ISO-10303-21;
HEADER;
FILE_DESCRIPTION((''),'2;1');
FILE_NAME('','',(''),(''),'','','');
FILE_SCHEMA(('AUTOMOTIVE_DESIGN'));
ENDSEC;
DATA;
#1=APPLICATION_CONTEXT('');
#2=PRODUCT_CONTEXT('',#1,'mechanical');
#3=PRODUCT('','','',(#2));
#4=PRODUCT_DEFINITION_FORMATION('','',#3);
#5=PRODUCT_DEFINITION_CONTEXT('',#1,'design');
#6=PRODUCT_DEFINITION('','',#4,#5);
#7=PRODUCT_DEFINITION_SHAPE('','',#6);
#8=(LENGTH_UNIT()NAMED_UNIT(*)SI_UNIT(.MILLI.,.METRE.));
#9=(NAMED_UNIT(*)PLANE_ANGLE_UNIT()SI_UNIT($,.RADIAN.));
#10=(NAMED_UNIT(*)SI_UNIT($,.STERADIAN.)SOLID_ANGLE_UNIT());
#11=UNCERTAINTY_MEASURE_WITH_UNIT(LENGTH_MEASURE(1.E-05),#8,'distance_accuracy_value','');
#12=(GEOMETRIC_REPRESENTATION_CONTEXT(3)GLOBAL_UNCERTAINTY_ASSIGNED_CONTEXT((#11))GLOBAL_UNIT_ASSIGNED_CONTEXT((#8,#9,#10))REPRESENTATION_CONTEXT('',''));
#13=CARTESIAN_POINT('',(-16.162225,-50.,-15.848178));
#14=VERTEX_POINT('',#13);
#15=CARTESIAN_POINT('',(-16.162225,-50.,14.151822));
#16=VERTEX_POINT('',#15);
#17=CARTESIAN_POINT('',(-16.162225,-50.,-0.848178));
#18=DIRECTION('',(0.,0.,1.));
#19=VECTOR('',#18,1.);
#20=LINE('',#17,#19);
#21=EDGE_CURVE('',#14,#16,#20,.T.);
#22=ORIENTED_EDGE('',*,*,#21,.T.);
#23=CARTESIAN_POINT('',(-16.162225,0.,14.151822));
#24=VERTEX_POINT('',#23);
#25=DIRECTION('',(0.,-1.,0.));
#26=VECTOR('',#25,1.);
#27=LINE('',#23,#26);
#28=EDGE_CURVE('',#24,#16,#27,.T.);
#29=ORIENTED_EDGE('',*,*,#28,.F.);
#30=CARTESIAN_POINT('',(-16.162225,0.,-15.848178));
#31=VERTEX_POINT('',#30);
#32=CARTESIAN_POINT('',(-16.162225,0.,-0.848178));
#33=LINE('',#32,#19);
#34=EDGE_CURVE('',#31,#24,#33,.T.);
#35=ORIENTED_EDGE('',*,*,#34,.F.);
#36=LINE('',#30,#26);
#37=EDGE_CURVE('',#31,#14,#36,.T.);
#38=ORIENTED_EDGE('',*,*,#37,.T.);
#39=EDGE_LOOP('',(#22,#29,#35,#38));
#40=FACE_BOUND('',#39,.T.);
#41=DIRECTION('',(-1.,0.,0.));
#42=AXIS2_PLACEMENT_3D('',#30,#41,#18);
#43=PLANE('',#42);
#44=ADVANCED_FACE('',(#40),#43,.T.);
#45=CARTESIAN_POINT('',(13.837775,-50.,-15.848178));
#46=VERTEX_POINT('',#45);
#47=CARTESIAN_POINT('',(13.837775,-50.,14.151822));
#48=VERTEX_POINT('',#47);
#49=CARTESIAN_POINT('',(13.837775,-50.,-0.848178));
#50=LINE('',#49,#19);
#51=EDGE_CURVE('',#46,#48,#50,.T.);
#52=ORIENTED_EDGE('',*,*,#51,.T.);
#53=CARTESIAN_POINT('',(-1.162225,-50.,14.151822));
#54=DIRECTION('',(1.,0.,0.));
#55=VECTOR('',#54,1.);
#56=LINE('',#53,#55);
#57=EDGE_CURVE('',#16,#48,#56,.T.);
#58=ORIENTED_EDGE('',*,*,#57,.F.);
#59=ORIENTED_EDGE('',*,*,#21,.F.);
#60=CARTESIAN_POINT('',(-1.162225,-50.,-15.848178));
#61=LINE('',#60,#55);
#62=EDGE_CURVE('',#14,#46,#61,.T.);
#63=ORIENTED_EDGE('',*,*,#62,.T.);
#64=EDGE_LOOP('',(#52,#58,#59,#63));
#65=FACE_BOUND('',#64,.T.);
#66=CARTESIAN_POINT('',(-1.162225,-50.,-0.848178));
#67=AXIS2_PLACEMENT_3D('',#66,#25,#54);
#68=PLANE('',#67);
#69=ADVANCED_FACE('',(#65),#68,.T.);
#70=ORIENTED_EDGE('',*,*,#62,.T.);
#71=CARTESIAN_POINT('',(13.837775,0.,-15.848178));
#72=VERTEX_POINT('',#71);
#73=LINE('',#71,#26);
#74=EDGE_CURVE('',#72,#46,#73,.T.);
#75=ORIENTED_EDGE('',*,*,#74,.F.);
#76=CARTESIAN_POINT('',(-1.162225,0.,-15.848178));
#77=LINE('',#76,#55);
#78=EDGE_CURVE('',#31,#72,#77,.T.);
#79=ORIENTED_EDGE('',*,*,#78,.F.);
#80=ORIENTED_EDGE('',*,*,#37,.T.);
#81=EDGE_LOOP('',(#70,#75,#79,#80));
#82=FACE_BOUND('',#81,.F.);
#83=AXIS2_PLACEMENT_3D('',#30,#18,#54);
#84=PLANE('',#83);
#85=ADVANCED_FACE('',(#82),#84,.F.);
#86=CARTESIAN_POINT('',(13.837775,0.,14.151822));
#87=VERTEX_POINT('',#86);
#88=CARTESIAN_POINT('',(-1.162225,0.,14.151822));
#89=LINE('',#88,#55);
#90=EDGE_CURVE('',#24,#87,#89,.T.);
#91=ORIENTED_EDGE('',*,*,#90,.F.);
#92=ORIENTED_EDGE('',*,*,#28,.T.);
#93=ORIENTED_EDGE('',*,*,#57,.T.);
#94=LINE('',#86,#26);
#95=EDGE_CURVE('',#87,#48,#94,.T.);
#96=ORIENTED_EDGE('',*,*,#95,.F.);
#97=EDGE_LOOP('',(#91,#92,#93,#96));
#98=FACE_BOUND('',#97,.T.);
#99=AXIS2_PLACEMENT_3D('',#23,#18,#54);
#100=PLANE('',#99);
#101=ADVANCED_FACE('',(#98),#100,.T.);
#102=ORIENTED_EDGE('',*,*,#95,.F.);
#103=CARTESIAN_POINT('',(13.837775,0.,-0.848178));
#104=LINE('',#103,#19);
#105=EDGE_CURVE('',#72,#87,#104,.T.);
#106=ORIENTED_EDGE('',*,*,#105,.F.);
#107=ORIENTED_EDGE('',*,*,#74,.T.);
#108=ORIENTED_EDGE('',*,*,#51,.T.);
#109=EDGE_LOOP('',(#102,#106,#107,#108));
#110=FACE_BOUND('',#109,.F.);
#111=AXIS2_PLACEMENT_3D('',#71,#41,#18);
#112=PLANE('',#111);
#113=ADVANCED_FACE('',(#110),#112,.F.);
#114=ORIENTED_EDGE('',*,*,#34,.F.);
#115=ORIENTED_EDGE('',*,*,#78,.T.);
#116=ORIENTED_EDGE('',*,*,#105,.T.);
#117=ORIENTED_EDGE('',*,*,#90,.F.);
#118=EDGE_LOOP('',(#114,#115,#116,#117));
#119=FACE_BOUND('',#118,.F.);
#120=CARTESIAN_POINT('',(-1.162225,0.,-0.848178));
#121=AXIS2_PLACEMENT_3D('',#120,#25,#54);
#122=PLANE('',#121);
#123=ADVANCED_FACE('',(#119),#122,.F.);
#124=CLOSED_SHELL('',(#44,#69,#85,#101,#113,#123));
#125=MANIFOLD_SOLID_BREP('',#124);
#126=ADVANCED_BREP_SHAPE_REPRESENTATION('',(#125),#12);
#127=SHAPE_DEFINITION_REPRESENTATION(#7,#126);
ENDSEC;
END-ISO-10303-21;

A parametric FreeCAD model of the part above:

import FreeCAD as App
import Part
import Sketcher

doc = App.newDocument("Part")
params = doc.addObject("Spreadsheet::Sheet", "Params")
for row, (alias, value) in enumerate([
    ("sketch1_width", "30 mm"),
    ("pad1_length", "50 mm"),
], start=1):
    params.set(f"A{row}", alias)
    params.set(f"B{row}", "=" + value)
    params.setAlias(f"B{row}", alias)

body = doc.addObject("PartDesign::Body", "Body")

sketch1 = body.newObject("Sketcher::SketchObject", "Sketch")
sketch1.AttachmentSupport = (doc.getObject("XZ_Plane"), [""])
sketch1.MapMode = "FlatFace"
sketch1.addGeometry([
    Part.LineSegment(App.Vector(-16, 14, 0), App.Vector(-16, -16, 0)),
    Part.LineSegment(App.Vector(-16, -16, 0), App.Vector(14, -16, 0)),
    Part.LineSegment(App.Vector(14, -16, 0), App.Vector(14, 14, 0)),
    Part.LineSegment(App.Vector(14, 14, 0), App.Vector(-16, 14, 0)),
], False)
sketch1.addConstraint([
    Sketcher.Constraint("Coincident", 0, 2, 1, 1),
    Sketcher.Constraint("Coincident", 1, 2, 2, 1),
    Sketcher.Constraint("Coincident", 2, 2, 3, 1),
    Sketcher.Constraint("Coincident", 3, 2, 0, 1),
    Sketcher.Constraint("Vertical", 0),
    Sketcher.Constraint("Horizontal", 1),
    Sketcher.Constraint("Vertical", 2),
    Sketcher.Constraint("Horizontal", 3),
    Sketcher.Constraint("Equal", 3, 0),
    Sketcher.Constraint("DistanceX", 1, 1, 1, 2, 30.0),
    Sketcher.Constraint("DistanceY", 0, 2, -1, 1, 15.848178),
    Sketcher.Constraint("DistanceX", 0, 2, -1, 1, 16.162225),
])
sketch1.setExpression("Constraints[9]", "Params.sketch1_width")
pad1 = body.newObject("PartDesign::Pad", "Pad")
pad1.Profile = sketch1
pad1.setExpression("Length", "Params.pad1_length")

doc.recompute()
